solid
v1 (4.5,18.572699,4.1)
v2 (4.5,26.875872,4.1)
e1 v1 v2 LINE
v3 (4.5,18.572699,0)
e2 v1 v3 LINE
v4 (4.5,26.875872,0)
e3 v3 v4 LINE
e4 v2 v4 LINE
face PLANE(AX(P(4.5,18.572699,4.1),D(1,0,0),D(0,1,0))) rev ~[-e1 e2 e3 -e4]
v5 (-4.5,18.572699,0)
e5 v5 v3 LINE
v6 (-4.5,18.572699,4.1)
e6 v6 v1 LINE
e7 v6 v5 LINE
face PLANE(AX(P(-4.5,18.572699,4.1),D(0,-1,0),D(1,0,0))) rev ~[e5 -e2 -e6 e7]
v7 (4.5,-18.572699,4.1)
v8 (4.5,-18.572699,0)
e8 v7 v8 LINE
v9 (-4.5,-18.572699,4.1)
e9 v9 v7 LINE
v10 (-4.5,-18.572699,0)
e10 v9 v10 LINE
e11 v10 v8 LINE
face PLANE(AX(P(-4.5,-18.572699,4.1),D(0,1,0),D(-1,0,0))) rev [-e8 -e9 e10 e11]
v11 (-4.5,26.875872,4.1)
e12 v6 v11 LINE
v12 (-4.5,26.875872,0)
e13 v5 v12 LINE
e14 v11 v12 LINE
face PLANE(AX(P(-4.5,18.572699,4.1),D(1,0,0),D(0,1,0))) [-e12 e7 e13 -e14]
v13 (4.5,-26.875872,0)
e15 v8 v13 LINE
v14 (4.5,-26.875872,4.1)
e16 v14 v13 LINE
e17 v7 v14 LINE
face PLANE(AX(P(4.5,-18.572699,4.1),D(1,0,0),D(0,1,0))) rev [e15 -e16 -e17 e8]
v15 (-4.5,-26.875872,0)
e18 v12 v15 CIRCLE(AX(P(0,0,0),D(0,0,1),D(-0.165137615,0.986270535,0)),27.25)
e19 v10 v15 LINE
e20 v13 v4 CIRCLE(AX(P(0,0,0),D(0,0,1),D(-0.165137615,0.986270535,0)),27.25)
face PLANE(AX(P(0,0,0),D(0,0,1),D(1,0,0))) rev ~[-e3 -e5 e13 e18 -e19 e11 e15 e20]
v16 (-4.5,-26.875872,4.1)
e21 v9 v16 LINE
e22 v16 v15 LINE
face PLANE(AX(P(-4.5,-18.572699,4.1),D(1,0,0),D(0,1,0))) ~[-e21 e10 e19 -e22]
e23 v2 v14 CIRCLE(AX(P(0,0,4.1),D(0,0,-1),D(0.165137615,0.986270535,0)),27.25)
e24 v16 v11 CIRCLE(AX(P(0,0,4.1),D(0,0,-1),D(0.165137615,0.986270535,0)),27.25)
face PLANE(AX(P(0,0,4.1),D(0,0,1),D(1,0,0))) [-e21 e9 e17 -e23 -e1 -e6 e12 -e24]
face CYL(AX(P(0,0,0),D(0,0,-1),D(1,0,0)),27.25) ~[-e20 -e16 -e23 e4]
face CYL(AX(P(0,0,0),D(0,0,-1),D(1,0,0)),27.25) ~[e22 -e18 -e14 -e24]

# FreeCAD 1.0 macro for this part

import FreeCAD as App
import Part
import Sketcher


def add_polygon(sketch, points):
    """Adds a closed chain of lines whose ends are joined by coincident constraints."""
    first, n = sketch.GeometryCount, len(points)
    for a, b in zip(points, points[1:] + points[:1]):
        sketch.addGeometry(Part.LineSegment(App.Vector(*a, 0), App.Vector(*b, 0)), False)
    for i in range(n):
        sketch.addConstraint(Sketcher.Constraint("Coincident", first + i, 2, first + (i + 1) % n, 1))

doc = App.newDocument("Part")
body = doc.addObject("PartDesign::Body", "Body")

sketch1 = body.newObject("Sketcher::SketchObject", "Sketch")
sketch1.AttachmentSupport = (doc.getObject("XY_Plane"), [""])
sketch1.MapMode = "FlatFace"
sketch1.addGeometry(Part.Circle(App.Vector(0, 0, 0), App.Vector(0, 0, 1), 27), False)
sketch1.addConstraint(Sketcher.Constraint("Coincident", 0, 3, -1, 1))
sketch1.addConstraint(Sketcher.Constraint("Diameter", 0, 54.5))
pad1 = body.newObject("PartDesign::Pad", "Pad")
pad1.Profile = sketch1
pad1.Length = 4.1

sketch2 = body.newObject("Sketcher::SketchObject", "Sketch001")
sketch2.AttachmentSupport = (doc.getObject("XY_Plane"), [""])
sketch2.MapMode = "FlatFace"
sketch2.AttachmentOffset = App.Placement(App.Vector(0, 0, 4.1), App.Rotation())
add_polygon(sketch2, [(-4, 28), (-4, 19), (4, 19), (4, 28)])
sketch2.addConstraint(Sketcher.Constraint("Vertical", 0))
sketch2.addConstraint(Sketcher.Constraint("Horizontal", 1))
sketch2.addConstraint(Sketcher.Constraint("Vertical", 2))
sketch2.addConstraint(Sketcher.Constraint("Horizontal", 3))
sketch2.addConstraint(Sketcher.Constraint("Equal", 3, 0))
sketch2.addConstraint(Sketcher.Constraint("DistanceX", 1, 1, 1, 2, 9.0))
sketch2.addConstraint(Sketcher.Constraint("DistanceX", 0, 2, -1, 1, 4.5))
sketch2.addConstraint(Sketcher.Constraint("DistanceY", -1, 1, 0, 2, 18.572699))
pocket1 = body.newObject("PartDesign::Pocket", "Pocket")
pocket1.Profile = sketch2
pocket1.Length = 5
doc.recompute()

mirrored = body.newObject("PartDesign::Mirrored", "Mirrored")
mirrored.Originals = [pocket1]
mirrored.MirrorPlane = (doc.getObject("XZ_Plane"), [""])
body.Tip = mirrored

doc.recompute()
